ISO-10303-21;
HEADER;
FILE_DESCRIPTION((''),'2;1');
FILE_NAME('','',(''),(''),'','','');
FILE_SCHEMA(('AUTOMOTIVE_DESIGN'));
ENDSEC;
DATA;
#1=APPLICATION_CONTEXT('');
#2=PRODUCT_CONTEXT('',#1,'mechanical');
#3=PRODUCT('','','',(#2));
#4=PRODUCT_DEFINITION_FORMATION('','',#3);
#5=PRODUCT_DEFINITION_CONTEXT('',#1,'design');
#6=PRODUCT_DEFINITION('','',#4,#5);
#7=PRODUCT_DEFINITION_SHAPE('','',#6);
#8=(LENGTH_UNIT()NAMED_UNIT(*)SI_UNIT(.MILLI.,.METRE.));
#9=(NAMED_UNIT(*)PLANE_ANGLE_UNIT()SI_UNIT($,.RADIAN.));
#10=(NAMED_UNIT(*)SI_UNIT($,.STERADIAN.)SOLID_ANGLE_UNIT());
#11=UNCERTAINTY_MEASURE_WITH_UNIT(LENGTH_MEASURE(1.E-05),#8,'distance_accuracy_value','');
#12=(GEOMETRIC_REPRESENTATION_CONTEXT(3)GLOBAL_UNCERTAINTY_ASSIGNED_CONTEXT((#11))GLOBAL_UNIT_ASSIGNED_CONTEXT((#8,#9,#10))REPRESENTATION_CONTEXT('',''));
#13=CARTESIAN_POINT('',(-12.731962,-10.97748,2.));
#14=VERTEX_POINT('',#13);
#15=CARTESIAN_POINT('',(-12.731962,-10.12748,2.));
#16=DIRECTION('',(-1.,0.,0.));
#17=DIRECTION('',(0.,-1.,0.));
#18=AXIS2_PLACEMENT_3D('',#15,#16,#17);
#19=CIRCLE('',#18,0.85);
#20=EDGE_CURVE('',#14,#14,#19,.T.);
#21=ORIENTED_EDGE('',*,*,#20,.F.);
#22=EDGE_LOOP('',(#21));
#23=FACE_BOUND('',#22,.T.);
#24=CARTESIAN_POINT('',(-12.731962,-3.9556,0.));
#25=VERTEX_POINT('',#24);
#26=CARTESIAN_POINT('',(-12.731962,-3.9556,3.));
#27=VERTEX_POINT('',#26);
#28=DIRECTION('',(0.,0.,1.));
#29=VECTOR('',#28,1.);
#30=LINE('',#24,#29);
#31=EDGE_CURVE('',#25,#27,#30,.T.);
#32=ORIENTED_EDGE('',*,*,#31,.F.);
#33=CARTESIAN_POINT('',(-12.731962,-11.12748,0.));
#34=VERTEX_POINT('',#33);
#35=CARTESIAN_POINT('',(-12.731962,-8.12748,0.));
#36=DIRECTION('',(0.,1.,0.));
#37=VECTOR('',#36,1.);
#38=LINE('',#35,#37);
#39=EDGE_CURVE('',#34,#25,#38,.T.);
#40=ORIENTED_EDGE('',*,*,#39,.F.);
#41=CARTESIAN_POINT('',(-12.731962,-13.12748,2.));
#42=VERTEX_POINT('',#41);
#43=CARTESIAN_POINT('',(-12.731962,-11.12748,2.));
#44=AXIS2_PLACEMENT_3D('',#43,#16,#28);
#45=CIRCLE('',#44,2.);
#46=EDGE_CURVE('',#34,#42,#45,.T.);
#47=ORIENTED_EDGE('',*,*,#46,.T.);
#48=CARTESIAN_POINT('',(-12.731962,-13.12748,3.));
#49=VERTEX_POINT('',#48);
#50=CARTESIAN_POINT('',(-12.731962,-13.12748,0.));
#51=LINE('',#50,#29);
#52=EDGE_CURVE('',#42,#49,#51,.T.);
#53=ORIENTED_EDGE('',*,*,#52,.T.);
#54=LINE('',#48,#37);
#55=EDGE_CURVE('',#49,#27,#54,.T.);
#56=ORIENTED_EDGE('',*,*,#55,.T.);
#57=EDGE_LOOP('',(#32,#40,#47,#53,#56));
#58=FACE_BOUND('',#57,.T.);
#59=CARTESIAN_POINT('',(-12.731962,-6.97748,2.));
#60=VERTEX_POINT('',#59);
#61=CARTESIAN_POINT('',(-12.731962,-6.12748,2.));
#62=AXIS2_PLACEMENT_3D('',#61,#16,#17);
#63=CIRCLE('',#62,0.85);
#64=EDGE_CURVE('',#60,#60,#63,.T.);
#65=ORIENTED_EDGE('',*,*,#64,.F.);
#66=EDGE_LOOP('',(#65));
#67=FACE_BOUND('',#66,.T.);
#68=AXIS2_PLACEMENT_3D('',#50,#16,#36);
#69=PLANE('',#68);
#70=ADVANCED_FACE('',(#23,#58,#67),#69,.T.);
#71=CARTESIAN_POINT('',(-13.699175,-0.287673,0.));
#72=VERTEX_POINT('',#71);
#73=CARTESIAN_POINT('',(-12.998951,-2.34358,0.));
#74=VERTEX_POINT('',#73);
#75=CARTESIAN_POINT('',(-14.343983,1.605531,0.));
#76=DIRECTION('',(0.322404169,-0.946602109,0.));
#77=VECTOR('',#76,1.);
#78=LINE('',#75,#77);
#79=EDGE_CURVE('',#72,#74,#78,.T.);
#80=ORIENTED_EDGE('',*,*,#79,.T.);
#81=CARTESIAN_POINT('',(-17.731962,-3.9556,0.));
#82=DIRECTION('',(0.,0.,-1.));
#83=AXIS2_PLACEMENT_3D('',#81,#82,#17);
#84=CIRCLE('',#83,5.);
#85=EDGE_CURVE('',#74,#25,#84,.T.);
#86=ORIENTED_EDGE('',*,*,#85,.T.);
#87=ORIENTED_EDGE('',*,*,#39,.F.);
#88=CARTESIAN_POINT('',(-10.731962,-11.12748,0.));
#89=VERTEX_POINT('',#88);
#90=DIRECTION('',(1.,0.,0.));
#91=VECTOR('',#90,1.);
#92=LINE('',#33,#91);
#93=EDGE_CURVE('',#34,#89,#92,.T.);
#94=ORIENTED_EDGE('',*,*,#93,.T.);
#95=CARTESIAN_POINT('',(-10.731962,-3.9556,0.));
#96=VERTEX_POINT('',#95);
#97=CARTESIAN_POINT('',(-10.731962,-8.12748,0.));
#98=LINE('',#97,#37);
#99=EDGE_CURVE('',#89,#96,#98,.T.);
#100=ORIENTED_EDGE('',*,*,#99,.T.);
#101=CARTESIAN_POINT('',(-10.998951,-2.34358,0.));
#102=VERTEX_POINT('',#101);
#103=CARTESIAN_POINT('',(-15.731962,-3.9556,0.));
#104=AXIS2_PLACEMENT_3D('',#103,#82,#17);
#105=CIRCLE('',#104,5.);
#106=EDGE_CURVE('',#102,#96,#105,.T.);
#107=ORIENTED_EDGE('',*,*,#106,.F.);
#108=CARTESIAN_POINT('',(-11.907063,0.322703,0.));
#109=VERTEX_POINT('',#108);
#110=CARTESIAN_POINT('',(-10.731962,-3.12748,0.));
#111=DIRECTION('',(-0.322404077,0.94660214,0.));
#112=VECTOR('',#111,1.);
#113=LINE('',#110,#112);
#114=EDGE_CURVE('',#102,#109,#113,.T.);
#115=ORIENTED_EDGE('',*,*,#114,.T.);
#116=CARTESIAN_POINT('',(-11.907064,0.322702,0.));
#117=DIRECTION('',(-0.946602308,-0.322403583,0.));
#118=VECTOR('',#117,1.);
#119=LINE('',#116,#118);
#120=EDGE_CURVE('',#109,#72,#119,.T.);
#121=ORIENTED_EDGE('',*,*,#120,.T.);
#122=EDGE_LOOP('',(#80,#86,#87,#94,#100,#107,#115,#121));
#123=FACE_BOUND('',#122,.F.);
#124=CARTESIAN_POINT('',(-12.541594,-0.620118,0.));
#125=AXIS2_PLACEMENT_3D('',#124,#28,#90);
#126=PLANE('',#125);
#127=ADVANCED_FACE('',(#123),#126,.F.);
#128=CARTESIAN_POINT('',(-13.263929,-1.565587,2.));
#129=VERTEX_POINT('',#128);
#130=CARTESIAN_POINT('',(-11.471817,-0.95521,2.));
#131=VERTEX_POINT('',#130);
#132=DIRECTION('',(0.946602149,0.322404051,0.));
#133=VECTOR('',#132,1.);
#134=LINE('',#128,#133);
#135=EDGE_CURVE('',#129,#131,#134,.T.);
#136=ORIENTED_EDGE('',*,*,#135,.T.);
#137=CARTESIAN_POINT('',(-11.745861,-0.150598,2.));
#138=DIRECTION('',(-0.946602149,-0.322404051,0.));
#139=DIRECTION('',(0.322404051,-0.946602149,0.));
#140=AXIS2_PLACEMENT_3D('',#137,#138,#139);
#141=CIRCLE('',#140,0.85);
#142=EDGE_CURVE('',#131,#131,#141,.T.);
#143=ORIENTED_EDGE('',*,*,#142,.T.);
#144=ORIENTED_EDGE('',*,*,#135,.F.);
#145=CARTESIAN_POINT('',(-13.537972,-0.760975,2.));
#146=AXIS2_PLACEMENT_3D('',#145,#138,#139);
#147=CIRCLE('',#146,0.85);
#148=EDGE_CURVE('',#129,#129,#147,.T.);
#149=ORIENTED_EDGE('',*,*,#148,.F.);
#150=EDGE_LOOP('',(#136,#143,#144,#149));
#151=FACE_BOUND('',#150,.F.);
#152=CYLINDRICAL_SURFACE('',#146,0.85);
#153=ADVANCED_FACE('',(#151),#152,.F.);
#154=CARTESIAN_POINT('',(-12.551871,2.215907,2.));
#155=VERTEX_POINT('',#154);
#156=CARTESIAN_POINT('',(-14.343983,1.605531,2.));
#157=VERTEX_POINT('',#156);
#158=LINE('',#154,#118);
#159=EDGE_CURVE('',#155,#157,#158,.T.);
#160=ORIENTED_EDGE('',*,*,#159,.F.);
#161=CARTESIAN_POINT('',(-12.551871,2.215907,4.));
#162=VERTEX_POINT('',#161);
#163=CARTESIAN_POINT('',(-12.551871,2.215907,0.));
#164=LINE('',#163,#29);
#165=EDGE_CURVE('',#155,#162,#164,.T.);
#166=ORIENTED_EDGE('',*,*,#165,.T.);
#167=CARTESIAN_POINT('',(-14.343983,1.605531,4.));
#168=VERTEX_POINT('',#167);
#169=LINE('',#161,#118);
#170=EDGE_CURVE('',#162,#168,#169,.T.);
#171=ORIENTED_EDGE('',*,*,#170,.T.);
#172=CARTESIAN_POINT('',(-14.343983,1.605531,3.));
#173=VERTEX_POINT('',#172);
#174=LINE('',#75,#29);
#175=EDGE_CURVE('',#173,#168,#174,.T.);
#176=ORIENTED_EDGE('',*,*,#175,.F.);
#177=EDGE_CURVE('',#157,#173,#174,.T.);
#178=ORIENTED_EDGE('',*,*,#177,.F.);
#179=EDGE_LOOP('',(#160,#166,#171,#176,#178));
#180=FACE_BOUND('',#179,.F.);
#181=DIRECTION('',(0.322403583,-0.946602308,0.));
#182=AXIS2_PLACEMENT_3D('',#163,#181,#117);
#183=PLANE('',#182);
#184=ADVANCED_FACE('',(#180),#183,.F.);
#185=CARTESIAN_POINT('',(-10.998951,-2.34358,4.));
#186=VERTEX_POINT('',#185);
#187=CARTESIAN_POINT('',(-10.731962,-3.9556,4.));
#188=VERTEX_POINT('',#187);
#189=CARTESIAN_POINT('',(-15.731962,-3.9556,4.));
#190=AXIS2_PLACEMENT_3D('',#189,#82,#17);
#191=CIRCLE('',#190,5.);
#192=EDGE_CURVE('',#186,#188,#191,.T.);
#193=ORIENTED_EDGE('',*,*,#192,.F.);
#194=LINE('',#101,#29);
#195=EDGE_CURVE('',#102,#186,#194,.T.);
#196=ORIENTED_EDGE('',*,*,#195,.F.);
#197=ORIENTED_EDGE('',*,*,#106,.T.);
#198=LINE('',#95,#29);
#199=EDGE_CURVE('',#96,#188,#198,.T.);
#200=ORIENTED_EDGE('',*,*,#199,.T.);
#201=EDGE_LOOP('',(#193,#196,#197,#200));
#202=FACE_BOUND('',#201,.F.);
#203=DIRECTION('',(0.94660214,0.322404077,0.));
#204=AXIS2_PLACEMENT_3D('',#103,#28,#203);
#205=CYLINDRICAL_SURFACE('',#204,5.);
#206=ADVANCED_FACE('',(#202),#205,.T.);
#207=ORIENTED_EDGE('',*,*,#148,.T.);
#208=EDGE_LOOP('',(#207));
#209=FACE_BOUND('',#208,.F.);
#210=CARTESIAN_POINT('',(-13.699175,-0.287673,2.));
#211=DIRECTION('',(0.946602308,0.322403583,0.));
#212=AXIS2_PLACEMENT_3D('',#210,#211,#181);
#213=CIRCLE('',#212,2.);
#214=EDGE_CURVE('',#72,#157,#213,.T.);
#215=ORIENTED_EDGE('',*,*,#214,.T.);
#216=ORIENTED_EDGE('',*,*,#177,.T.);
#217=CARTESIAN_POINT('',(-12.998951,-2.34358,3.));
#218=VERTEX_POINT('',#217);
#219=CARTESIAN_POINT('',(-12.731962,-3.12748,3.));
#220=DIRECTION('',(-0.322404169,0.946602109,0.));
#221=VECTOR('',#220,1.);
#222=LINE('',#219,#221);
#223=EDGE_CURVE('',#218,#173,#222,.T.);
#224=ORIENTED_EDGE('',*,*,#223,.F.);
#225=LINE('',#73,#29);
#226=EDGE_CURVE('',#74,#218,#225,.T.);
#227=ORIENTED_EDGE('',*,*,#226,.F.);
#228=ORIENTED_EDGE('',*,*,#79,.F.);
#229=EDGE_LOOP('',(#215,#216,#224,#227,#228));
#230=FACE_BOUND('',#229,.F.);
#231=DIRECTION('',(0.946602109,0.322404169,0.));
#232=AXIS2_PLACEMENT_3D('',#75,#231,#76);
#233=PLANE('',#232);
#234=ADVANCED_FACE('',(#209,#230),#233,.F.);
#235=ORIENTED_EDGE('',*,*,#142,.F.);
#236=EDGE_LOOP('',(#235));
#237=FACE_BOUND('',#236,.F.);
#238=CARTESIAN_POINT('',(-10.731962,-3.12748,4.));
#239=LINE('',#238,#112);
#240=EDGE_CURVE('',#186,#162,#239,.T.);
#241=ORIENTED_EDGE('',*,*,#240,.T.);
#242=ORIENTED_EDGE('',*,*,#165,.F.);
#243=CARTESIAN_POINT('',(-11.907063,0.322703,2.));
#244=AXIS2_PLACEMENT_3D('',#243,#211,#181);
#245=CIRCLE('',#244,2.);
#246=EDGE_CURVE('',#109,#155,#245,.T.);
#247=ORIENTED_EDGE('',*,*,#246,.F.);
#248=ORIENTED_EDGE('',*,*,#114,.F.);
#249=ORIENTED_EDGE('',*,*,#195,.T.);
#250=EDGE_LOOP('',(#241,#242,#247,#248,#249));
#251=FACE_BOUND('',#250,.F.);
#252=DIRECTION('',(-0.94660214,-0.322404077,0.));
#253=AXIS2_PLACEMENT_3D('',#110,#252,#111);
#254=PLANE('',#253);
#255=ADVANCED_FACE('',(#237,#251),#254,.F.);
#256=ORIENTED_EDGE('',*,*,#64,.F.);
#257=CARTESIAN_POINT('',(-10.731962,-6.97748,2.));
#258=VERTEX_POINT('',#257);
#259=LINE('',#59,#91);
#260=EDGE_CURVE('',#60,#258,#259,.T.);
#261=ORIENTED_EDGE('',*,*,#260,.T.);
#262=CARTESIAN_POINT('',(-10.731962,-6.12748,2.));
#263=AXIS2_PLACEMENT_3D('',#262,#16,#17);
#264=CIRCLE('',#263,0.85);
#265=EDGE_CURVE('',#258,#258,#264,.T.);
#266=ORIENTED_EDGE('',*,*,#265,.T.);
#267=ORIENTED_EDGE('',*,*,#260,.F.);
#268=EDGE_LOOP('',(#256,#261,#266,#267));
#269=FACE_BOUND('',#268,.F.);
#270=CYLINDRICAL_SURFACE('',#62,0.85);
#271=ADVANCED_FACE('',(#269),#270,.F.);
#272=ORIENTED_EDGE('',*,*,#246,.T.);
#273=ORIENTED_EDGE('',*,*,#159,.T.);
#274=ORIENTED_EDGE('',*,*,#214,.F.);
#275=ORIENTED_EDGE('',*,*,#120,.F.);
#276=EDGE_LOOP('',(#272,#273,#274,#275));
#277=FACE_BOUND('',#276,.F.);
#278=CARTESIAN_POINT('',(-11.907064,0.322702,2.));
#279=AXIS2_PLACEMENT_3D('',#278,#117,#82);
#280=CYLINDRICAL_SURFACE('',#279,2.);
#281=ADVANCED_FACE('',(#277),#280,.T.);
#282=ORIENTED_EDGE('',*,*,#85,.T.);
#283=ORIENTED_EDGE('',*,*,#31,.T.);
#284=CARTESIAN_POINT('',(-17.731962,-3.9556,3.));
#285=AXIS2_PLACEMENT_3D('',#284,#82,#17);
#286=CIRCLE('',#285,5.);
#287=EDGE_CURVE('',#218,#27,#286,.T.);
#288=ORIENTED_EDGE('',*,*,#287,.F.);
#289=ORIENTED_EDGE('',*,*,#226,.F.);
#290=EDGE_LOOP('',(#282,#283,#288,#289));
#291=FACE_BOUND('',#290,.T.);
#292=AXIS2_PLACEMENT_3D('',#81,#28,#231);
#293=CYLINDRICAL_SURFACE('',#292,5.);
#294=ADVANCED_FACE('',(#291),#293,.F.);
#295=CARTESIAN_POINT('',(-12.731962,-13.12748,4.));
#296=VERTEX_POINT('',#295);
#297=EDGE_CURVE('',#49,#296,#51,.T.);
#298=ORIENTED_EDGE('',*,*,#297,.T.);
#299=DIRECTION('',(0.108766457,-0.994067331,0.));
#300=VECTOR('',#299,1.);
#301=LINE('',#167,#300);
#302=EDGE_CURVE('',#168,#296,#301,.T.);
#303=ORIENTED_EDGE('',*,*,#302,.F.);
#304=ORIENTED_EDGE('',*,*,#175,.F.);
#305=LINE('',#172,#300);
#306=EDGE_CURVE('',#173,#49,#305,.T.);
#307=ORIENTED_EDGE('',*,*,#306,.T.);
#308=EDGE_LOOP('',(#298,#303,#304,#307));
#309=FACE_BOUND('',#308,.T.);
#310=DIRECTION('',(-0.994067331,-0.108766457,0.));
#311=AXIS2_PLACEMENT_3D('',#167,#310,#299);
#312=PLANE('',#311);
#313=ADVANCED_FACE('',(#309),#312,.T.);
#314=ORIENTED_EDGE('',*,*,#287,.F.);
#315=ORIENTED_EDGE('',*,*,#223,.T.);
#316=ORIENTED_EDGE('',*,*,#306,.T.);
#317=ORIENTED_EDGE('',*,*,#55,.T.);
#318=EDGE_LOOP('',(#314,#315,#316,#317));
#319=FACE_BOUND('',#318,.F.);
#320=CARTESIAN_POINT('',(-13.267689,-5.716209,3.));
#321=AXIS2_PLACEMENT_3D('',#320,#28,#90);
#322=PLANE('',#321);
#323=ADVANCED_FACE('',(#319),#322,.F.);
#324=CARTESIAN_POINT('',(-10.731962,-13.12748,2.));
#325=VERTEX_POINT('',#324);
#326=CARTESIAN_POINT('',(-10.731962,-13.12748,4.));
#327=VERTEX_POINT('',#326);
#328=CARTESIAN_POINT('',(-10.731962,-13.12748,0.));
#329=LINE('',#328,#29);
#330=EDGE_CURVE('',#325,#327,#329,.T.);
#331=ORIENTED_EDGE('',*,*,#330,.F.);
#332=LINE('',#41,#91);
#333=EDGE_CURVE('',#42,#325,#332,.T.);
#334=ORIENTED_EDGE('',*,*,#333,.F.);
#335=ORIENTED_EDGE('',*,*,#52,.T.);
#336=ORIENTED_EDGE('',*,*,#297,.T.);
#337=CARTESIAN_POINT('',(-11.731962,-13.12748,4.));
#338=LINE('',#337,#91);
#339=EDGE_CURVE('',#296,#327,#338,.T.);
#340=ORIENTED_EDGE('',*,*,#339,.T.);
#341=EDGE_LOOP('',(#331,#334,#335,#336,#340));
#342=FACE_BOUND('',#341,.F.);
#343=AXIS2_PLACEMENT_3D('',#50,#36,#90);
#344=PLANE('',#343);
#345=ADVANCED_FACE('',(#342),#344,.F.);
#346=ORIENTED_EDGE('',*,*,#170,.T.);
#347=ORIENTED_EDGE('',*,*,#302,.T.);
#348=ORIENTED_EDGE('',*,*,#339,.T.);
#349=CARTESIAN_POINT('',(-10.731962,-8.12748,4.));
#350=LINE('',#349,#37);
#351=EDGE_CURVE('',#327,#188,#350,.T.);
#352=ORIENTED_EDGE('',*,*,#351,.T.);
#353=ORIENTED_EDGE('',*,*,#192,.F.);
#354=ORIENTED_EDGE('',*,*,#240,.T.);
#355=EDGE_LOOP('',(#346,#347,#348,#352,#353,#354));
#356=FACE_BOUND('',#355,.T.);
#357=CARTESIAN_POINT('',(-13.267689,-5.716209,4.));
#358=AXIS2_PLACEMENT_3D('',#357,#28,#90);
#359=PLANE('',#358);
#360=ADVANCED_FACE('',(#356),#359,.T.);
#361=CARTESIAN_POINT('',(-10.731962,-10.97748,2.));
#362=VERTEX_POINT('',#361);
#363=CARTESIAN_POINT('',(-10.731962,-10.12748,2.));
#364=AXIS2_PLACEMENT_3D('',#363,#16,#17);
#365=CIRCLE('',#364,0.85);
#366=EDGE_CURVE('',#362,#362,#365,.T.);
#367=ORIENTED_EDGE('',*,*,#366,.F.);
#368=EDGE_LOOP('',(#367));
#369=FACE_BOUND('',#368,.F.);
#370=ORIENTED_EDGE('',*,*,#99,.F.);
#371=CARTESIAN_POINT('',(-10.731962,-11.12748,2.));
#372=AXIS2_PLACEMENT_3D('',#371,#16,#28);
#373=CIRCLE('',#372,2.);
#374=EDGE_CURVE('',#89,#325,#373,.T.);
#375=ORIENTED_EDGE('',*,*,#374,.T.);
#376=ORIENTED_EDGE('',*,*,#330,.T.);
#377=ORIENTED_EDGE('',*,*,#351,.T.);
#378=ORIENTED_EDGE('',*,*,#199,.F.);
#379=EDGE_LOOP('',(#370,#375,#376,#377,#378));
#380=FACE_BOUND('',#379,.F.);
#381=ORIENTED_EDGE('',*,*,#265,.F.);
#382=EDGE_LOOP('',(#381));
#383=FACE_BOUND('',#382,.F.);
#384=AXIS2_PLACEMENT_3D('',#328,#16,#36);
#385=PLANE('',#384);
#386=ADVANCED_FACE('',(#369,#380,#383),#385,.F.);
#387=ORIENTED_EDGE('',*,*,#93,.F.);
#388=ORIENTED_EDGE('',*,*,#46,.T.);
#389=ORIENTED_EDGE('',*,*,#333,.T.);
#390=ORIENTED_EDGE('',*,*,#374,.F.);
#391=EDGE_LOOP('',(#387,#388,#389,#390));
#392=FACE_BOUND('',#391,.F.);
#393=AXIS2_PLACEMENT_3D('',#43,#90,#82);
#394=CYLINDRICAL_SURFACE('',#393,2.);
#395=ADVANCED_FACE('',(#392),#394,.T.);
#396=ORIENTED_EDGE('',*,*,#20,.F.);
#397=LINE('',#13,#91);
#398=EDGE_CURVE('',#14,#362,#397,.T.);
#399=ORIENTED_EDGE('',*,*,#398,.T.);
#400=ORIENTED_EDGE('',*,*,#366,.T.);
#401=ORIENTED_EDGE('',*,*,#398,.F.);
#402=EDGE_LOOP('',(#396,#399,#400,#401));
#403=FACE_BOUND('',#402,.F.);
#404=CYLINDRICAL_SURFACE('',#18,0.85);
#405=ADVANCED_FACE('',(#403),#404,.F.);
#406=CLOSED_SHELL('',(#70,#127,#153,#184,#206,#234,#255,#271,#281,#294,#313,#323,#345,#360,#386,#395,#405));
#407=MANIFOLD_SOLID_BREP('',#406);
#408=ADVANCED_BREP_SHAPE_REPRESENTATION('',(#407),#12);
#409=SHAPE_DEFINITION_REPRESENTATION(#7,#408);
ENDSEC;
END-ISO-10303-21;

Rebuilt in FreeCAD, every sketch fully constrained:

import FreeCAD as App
import Part
import Sketcher

V = App.Vector
Q = App.Units.Quantity


def edges_at(feature, points):
    """Names of the edges that pass closest to the given points."""
    edges = feature.Shape.Edges
    near = lambda p: min(range(len(edges)), key=lambda i: edges[i].distToShape(Part.Vertex(*p))[0])
    return sorted({f"Edge{near(p) + 1}" for p in points})

doc = App.newDocument("Part")
params = doc.addObject("Spreadsheet::Sheet", "Params")
for row, (alias, value) in enumerate([
    ("sketch1_width", "2 mm"),
    ("sketch1_height", "10 mm"),
    ("sketch1_length", "5 mm"),
    ("pad1_length", "4 mm"),
    ("sketch2_height", "10 mm"),
    ("sketch2_length", "5 mm"),
    ("pad2_length", "1 mm"),
    ("sketch3_diameter", "1.7 mm"),
    ("pocket1_length", "25 mm"),
    ("sketch4_diameter", "1.7 mm"),
    ("pocket2_length", "25 mm"),
    ("fillet_radius", "5 mm"),
    ("fillet2_radius", "5 mm"),
    ("fillet3_radius", "2 mm"),
], start=1):
    params.set(f"A{row}", alias)
    params.set(f"B{row}", "=" + value)
    params.setAlias(f"B{row}", alias)

body = doc.addObject("PartDesign::Body", "Body")

sketch1 = doc.addObject("Sketcher::SketchObject", "Sketch")
body.addObject(sketch1)
sketch1.AttachmentSupport = (doc.XY_Plane, [""])
sketch1.MapMode = "FlatFace"
sketch1.addGeometry([
    Part.LineSegment(V(-14.343983, 1.605531, 0), V(-12.731962, -3.12748, 0)),
    Part.LineSegment(V(-12.731962, -3.12748, 0), V(-12.731962, -13.12748, 0)),
    Part.LineSegment(V(-12.731962, -13.12748, 0), V(-10.731962, -13.12748, 0)),
    Part.LineSegment(V(-10.731962, -13.12748, 0), V(-10.731962, -3.12748, 0)),
    Part.LineSegment(V(-10.731962, -3.12748, 0), V(-12.551871, 2.215907, 0)),
    Part.LineSegment(V(-12.551871, 2.215907, 0), V(-14.343983, 1.605531, 0)),
], False)
sketch1.addConstraint([
    Sketcher.Constraint("Coincident", 0, 2, 1, 1),
    Sketcher.Constraint("Coincident", 1, 2, 2, 1),
    Sketcher.Constraint("Coincident", 2, 2, 3, 1),
    Sketcher.Constraint("Coincident", 3, 2, 4, 1),
    Sketcher.Constraint("Coincident", 4, 2, 5, 1),
    Sketcher.Constraint("Coincident", 5, 2, 0, 1),
    Sketcher.Constraint("Vertical", 1),
    Sketcher.Constraint("Horizontal", 2),
    Sketcher.Constraint("Vertical", 3),
    Sketcher.Constraint("Parallel", 0, 4),
    Sketcher.Constraint("Perpendicular", 4, 5),
    Sketcher.Constraint("Horizontal", 0, 2, 3, 2),
    Sketcher.Constraint("DistanceX", 2, 1, 2, 2, Q("2 mm")),
    Sketcher.Constraint("DistanceY", 1, 2, 1, 1, Q("10 mm")),
    Sketcher.Constraint("Distance", 0, Q("5 mm")),
    Sketcher.Constraint("DistanceX", 0, 2, -1, 1, Q("12.731962 mm")),
    Sketcher.Constraint("DistanceY", 0, 2, -1, 1, Q("3.12748 mm")),
    Sketcher.Constraint("DistanceX", 4, 2, -1, 1, Q("12.551871 mm")),
])
sketch1.setExpression("Constraints[12]", "Params.sketch1_width")
sketch1.setExpression("Constraints[13]", "Params.sketch1_height")
sketch1.setExpression("Constraints[14]", "Params.sketch1_length")
pad1 = doc.addObject("PartDesign::Pad", "Pad")
body.addObject(pad1)
pad1.Profile = sketch1
pad1.setExpression("Length", "Params.pad1_length")

sketch2 = doc.addObject("Sketcher::SketchObject", "Sketch001")
body.addObject(sketch2)
sketch2.AttachmentSupport = (doc.XY_Plane, [""])
sketch2.MapMode = "FlatFace"
sketch2.AttachmentOffset = App.Placement(V(0, 0, 4), App.Rotation())
sketch2.addGeometry([
    Part.LineSegment(V(-12.731962, -3.12748, 0), V(-14.343983, 1.605531, 0)),
    Part.LineSegment(V(-14.343983, 1.605531, 0), V(-12.731962, -13.12748, 0)),
    Part.LineSegment(V(-12.731962, -13.12748, 0), V(-12.731962, -3.12748, 0)),
], False)
sketch2.addConstraint([
    Sketcher.Constraint("Coincident", 0, 2, 1, 1),
    Sketcher.Constraint("Coincident", 1, 2, 2, 1),
    Sketcher.Constraint("Coincident", 2, 2, 0, 1),
    Sketcher.Constraint("Vertical", 2),
    Sketcher.Constraint("DistanceY", 2, 1, 2, 2, Q("10 mm")),
    Sketcher.Constraint("Distance", 0, Q("5 mm")),
    Sketcher.Constraint("Distance", 1, Q("14.820939 mm")),
    Sketcher.Constraint("DistanceY", -1, 1, 0, 2, Q("1.605531 mm")),
    Sketcher.Constraint("DistanceX", 1, 2, -1, 1, Q("12.731962 mm")),
])
sketch2.setExpression("Constraints[4]", "Params.sketch2_height")
sketch2.setExpression("Constraints[5]", "Params.sketch2_length")
pad2 = doc.addObject("PartDesign::Pad", "Pad001")
body.addObject(pad2)
pad2.Profile = sketch2
pad2.setExpression("Length", "Params.pad2_length")
pad2.Reversed = True

sketch3 = doc.addObject("Sketcher::SketchObject", "Sketch002")
body.addObject(sketch3)
sketch3.Placement = App.Placement(V(-12.363017, -4.210731, 0), App.Rotation(V(0.322404051, -0.946602149, 0), V(0, 0, 1.000000001), V(-0.946602149, -0.322404051, 0), "ZXY"))
sketch3.addGeometry(Part.Circle(V(-3.644357, 2, 0), V(0, 0, 1), 0.85), False)
sketch3.addConstraint([
    Sketcher.Constraint("Diameter", 0, Q("1.7 mm")),
    Sketcher.Constraint("DistanceY", -1, 1, 0, 3, Q("2 mm")),
    Sketcher.Constraint("DistanceX", 0, 3, -1, 1, Q("3.644357 mm")),
])
sketch3.setExpression("Constraints[0]", "Params.sketch3_diameter")
pocket1 = doc.addObject("PartDesign::Pocket", "Pocket")
body.addObject(pocket1)
pocket1.Profile = sketch3
pocket1.setExpression("Length", "Params.pocket1_length")

sketch4 = doc.addObject("Sketcher::SketchObject", "Sketch003")
body.addObject(sketch4)
sketch4.AttachmentSupport = (doc.YZ_Plane, [""])
sketch4.MapMode = "FlatFace"
sketch4.AttachmentOffset = App.Placement(V(0, 0, -12.731962), App.Rotation())
sketch4.addGeometry([
    Part.Circle(V(-6.12748, 2, 0), V(0, 0, 1), 0.85),
    Part.Circle(V(-10.12748, 2, 0), V(0, 0, 1), 0.85),
], False)
sketch4.addConstraint([
    Sketcher.Constraint("Equal", 0, 1),
    Sketcher.Constraint("Horizontal", 0, 3, 1, 3),
    Sketcher.Constraint("Diameter", 0, Q("1.7 mm")),
    Sketcher.Constraint("DistanceY", -1, 1, 0, 3, Q("2 mm")),
    Sketcher.Constraint("DistanceX", 1, 3, 0, 3, Q("4 mm")),
    Sketcher.Constraint("DistanceX", 0, 3, -1, 1, Q("6.12748 mm")),
])
sketch4.setExpression("Constraints[2]", "Params.sketch4_diameter")
pocket2 = doc.addObject("PartDesign::Pocket", "Pocket001")
body.addObject(pocket2)
pocket2.Profile = sketch4
pocket2.setExpression("Length", "Params.pocket2_length")
pocket2.Reversed = True
doc.recompute()

fillet = doc.addObject("PartDesign::Fillet", "Fillet")
body.addObject(fillet)
fillet.Base = (pocket2, edges_at(pocket2, [(-12.732, -3.127, 1.5)]))
fillet.setExpression("Radius", "Params.fillet_radius")
doc.recompute()

fillet2 = doc.addObject("PartDesign::Fillet", "Fillet001")
body.addObject(fillet2)
fillet2.Base = (fillet, edges_at(fillet, [(-10.732, -3.127, 2)]))
fillet2.setExpression("Radius", "Params.fillet2_radius")
doc.recompute()

fillet3 = doc.addObject("PartDesign::Fillet", "Fillet002")
body.addObject(fillet3)
fillet3.Base = (fillet2, edges_at(fillet2, [(-11.732, -13.127, 0), (-13.448, 1.911, 0)]))
fillet3.setExpression("Radius", "Params.fillet3_radius")

doc.recompute()
